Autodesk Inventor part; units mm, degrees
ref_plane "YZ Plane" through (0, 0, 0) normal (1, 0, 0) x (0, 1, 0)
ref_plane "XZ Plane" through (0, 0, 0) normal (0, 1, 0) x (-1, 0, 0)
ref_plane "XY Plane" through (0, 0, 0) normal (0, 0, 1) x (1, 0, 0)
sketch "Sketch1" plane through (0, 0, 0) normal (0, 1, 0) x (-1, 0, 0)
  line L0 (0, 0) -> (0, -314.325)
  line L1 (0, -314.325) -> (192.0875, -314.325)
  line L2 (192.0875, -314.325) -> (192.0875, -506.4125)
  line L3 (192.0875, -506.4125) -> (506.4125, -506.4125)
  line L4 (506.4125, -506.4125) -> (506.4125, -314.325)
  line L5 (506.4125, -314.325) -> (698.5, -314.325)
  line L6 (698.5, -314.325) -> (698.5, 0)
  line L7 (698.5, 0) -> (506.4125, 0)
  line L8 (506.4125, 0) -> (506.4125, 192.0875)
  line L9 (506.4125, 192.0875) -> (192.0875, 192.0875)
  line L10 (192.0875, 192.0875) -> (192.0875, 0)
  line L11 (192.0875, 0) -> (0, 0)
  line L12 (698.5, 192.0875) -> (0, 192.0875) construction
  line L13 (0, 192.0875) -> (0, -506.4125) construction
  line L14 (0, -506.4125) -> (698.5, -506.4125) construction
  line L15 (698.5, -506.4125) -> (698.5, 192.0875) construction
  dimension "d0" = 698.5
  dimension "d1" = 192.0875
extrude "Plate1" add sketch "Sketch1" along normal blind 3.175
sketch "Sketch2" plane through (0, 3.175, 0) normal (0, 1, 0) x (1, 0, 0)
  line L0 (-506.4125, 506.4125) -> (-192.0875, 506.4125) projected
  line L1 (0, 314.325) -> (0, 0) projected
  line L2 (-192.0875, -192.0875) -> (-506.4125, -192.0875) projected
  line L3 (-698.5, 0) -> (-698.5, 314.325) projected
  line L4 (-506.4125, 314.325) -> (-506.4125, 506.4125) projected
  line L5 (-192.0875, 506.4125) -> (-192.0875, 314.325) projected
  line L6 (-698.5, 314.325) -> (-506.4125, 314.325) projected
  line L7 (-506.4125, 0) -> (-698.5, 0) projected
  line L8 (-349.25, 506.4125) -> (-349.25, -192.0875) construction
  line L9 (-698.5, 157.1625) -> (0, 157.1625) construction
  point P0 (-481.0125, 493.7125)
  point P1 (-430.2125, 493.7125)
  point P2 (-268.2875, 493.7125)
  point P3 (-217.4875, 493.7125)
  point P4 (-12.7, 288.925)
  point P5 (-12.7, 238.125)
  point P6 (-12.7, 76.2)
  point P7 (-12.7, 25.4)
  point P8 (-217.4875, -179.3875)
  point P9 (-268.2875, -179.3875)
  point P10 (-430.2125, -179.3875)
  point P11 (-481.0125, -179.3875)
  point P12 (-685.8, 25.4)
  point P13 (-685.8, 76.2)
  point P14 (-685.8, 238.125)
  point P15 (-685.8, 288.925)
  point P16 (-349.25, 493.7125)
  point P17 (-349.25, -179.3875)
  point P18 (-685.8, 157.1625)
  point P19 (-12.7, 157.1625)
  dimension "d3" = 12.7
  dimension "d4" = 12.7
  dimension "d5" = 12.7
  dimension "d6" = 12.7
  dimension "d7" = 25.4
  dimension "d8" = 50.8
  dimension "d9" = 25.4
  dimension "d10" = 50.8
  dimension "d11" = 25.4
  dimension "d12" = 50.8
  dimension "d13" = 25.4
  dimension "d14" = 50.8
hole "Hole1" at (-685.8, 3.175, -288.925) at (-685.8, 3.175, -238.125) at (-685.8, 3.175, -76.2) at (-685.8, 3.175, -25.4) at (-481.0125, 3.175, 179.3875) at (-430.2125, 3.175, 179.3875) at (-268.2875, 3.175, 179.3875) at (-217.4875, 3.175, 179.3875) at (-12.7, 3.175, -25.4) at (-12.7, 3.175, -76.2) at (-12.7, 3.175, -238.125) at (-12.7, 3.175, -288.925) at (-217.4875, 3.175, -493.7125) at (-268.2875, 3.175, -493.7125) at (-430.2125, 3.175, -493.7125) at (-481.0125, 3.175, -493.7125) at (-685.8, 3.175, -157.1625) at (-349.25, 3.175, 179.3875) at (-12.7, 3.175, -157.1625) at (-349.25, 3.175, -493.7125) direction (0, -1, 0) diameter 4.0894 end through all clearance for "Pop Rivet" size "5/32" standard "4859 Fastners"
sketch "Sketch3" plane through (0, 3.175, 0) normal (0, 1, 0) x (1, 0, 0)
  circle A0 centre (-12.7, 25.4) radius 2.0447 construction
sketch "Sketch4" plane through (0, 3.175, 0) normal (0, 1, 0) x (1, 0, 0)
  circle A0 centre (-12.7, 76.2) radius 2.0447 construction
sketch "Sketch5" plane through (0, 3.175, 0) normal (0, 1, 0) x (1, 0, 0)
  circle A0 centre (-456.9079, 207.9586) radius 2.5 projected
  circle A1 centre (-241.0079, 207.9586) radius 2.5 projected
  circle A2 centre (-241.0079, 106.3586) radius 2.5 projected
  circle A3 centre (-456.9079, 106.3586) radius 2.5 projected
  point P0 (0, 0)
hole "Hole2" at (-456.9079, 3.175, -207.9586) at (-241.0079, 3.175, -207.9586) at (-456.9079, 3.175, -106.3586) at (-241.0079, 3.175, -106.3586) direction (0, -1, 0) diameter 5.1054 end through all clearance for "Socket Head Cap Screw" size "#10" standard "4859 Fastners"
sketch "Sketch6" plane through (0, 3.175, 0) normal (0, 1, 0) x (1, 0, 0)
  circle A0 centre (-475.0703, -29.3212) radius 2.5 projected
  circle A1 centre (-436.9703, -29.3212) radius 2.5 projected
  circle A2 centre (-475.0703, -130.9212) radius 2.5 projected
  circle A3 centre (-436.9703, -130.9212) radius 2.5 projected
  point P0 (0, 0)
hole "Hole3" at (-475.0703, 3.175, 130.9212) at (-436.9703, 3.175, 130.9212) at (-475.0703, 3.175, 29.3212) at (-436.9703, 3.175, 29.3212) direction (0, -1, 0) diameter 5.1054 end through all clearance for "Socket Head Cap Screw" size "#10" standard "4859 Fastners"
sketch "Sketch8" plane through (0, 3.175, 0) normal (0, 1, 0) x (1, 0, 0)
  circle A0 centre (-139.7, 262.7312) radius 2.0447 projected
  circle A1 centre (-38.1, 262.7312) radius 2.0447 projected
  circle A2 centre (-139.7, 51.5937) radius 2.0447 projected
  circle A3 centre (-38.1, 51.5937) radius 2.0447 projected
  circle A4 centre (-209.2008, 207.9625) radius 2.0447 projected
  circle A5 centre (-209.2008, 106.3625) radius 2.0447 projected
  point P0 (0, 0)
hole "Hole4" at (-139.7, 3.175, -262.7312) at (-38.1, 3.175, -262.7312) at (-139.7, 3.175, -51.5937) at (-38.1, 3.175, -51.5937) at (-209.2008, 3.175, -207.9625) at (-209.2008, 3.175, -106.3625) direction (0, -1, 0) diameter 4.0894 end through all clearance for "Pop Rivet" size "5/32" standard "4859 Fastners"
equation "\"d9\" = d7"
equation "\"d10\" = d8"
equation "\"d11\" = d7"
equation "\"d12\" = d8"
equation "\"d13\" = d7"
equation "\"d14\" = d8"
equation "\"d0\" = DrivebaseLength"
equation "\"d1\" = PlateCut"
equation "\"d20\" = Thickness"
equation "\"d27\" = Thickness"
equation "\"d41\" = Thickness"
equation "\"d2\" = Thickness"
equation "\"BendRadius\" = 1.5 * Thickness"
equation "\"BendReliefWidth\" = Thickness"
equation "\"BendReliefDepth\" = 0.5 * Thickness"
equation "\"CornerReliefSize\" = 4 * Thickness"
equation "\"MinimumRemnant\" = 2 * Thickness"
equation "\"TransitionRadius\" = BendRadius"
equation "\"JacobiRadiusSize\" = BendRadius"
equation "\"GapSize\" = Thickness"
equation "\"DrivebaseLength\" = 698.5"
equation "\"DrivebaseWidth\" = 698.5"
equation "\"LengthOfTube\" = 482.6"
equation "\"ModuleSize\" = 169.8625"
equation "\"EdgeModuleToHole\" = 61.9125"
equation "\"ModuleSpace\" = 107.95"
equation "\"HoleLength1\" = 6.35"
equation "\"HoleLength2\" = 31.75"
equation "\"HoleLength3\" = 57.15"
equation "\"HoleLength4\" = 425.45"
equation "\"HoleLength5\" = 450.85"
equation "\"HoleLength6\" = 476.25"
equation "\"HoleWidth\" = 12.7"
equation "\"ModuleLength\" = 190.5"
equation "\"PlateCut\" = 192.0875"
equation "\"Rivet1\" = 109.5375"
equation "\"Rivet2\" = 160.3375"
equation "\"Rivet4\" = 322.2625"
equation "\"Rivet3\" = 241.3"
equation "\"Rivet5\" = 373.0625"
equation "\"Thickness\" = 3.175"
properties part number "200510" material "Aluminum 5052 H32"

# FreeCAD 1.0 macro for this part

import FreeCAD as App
import Part
import Sketcher

V = App.Vector
Q = App.Units.Quantity


def add_polygon(sketch, points):
    """Adds a closed chain of lines whose ends are joined by coincident constraints."""
    first, n = sketch.GeometryCount, len(points)
    for a, b in zip(points, points[1:] + points[:1]):
        sketch.addGeometry(Part.LineSegment(App.Vector(*a, 0), App.Vector(*b, 0)), False)
    for i in range(n):
        sketch.addConstraint(Sketcher.Constraint("Coincident", first + i, 2, first + (i + 1) % n, 1))

doc = App.newDocument("Part")
body = doc.addObject("PartDesign::Body", "Body")

# Sketch on XZ plane
sketch1 = body.newObject("Sketcher::SketchObject", "Sketch")
sketch1.AttachmentSupport = (doc.getObject("XZ_Plane"), [""])
sketch1.MapMode = "FlatFace"
add_polygon(sketch1, [(-192, 0), (0, 0), (0, -314), (-192, -314), (-192, -506), (-506, -506), (-506, -314), (-698, -314), (-698, 0), (-506, 0), (-506, 192), (-192, 192)])  # lines 0-11
sketch1.addConstraint(Sketcher.Constraint("Horizontal", 0))
sketch1.addConstraint(Sketcher.Constraint("Vertical", 1))
sketch1.addConstraint(Sketcher.Constraint("Horizontal", 2))
sketch1.addConstraint(Sketcher.Constraint("Vertical", 3))
sketch1.addConstraint(Sketcher.Constraint("Horizontal", 4))
sketch1.addConstraint(Sketcher.Constraint("Vertical", 5))
sketch1.addConstraint(Sketcher.Constraint("Horizontal", 6))
sketch1.addConstraint(Sketcher.Constraint("Vertical", 7))
sketch1.addConstraint(Sketcher.Constraint("Horizontal", 8))
sketch1.addConstraint(Sketcher.Constraint("Vertical", 9))
sketch1.addConstraint(Sketcher.Constraint("Horizontal", 10))
sketch1.addConstraint(Sketcher.Constraint("Vertical", 11))
sketch1.addConstraint(Sketcher.Constraint("Coincident", 0, 2, -1, 1))
sketch1.addConstraint(Sketcher.Constraint("PointOnObject", 7, 2, -1))
sketch1.addConstraint(Sketcher.Constraint("Horizontal", 2, 2, 5, 2))
sketch1.addConstraint(Sketcher.Constraint("Vertical", 5, 2, 8, 2))
sketch1.addConstraint(Sketcher.Constraint("Vertical", 3, 2, 10, 2))
sketch1.addConstraint(Sketcher.Constraint("Equal", 2, 6))
sketch1.addConstraint(Sketcher.Constraint("Equal", 10, 1))
sketch1.addConstraint(Sketcher.Constraint("Equal", 8, 3))
sketch1.addConstraint(Sketcher.Constraint("Equal", 5, 9))
sketch1.addConstraint(Sketcher.Constraint("DistanceX", 6, 2, -1, 1, Q("27.5 in")))
sketch1.addConstraint(Sketcher.Constraint("DistanceX", 0, 1, 0, 2, Q("7.5625 in")))
pad1 = body.newObject("PartDesign::Pad", "Pad")
pad1.Profile = sketch1
pad1.Length = Q("0.125 in")
pad1.Reversed = True

# Sketch on XZ plane
sketch2 = body.newObject("Sketcher::SketchObject", "Sketch001")
sketch2.AttachmentSupport = (doc.getObject("XZ_Plane"), [""])
sketch2.MapMode = "FlatFace"
sketch2.AttachmentOffset = App.Placement(V(0, 0, -0.125 * 25.4), App.Rotation())
sketch2.addGeometry(Part.Circle(V(-685.8, -288.9, 0), V(0, 0, 1), 2), False)
sketch2.addGeometry(Part.Circle(V(-685.8, -238.1, 0), V(0, 0, 1), 2), False)
sketch2.addGeometry(Part.Circle(V(-685.8, -76.2, 0), V(0, 0, 1), 2), False)
sketch2.addGeometry(Part.Circle(V(-685.8, -25.4, 0), V(0, 0, 1), 2), False)
sketch2.addGeometry(Part.Circle(V(-481, 179.4, 0), V(0, 0, 1), 2), False)
sketch2.addGeometry(Part.Circle(V(-430.2, 179.4, 0), V(0, 0, 1), 2), False)
sketch2.addGeometry(Part.Circle(V(-268.3, 179.4, 0), V(0, 0, 1), 2), False)
sketch2.addGeometry(Part.Circle(V(-217.5, 179.4, 0), V(0, 0, 1), 2), False)
sketch2.addGeometry(Part.Circle(V(-12.7, -25.4, 0), V(0, 0, 1), 2), False)
sketch2.addGeometry(Part.Circle(V(-12.7, -76.2, 0), V(0, 0, 1), 2), False)
sketch2.addGeometry(Part.Circle(V(-12.7, -238.1, 0), V(0, 0, 1), 2), False)
sketch2.addGeometry(Part.Circle(V(-12.7, -288.9, 0), V(0, 0, 1), 2), False)
sketch2.addGeometry(Part.Circle(V(-217.5, -493.7, 0), V(0, 0, 1), 2), False)
sketch2.addGeometry(Part.Circle(V(-268.3, -493.7, 0), V(0, 0, 1), 2), False)
sketch2.addGeometry(Part.Circle(V(-430.2, -493.7, 0), V(0, 0, 1), 2), False)
sketch2.addGeometry(Part.Circle(V(-481, -493.7, 0), V(0, 0, 1), 2), False)
sketch2.addGeometry(Part.Circle(V(-685.8, -157.2, 0), V(0, 0, 1), 2), False)
sketch2.addGeometry(Part.Circle(V(-349.2, 179.4, 0), V(0, 0, 1), 2), False)
sketch2.addGeometry(Part.Circle(V(-12.7, -157.2, 0), V(0, 0, 1), 2), False)
sketch2.addGeometry(Part.Circle(V(-349.2, -493.7, 0), V(0, 0, 1), 2), False)
sketch2.addConstraint(Sketcher.Constraint("Equal", 0, 1))
sketch2.addConstraint(Sketcher.Constraint("Equal", 1, 2))
sketch2.addConstraint(Sketcher.Constraint("Equal", 2, 3))
sketch2.addConstraint(Sketcher.Constraint("Equal", 3, 4))
sketch2.addConstraint(Sketcher.Constraint("Equal", 4, 5))
sketch2.addConstraint(Sketcher.Constraint("Equal", 5, 6))
sketch2.addConstraint(Sketcher.Constraint("Equal", 6, 7))
sketch2.addConstraint(Sketcher.Constraint("Equal", 7, 8))
sketch2.addConstraint(Sketcher.Constraint("Equal", 8, 9))
sketch2.addConstraint(Sketcher.Constraint("Equal", 9, 10))
sketch2.addConstraint(Sketcher.Constraint("Equal", 10, 11))
sketch2.addConstraint(Sketcher.Constraint("Equal", 11, 12))
sketch2.addConstraint(Sketcher.Constraint("Equal", 12, 13))
sketch2.addConstraint(Sketcher.Constraint("Equal", 13, 14))
sketch2.addConstraint(Sketcher.Constraint("Equal", 14, 15))
sketch2.addConstraint(Sketcher.Constraint("Equal", 15, 16))
sketch2.addConstraint(Sketcher.Constraint("Equal", 16, 17))
sketch2.addConstraint(Sketcher.Constraint("Equal", 17, 18))
sketch2.addConstraint(Sketcher.Constraint("Equal", 18, 19))
sketch2.addConstraint(Sketcher.Constraint("Horizontal", 4, 3, 5, 3))
sketch2.addConstraint(Sketcher.Constraint("Horizontal", 5, 3, 6, 3))
sketch2.addConstraint(Sketcher.Constraint("Horizontal", 6, 3, 7, 3))
sketch2.addConstraint(Sketcher.Constraint("Horizontal", 3, 3, 8, 3))
sketch2.addConstraint(Sketcher.Constraint("Horizontal", 2, 3, 9, 3))
sketch2.addConstraint(Sketcher.Constraint("Horizontal", 1, 3, 10, 3))
sketch2.addConstraint(Sketcher.Constraint("Horizontal", 0, 3, 11, 3))
sketch2.addConstraint(Sketcher.Constraint("Horizontal", 12, 3, 13, 3))
sketch2.addConstraint(Sketcher.Constraint("Horizontal", 13, 3, 14, 3))
sketch2.addConstraint(Sketcher.Constraint("Horizontal", 14, 3, 15, 3))
sketch2.addConstraint(Sketcher.Constraint("Horizontal", 7, 3, 17, 3))
sketch2.addConstraint(Sketcher.Constraint("Horizontal", 16, 3, 18, 3))
sketch2.addConstraint(Sketcher.Constraint("Horizontal", 15, 3, 19, 3))
sketch2.addConstraint(Sketcher.Constraint("Vertical", 0, 3, 1, 3))
sketch2.addConstraint(Sketcher.Constraint("Vertical", 1, 3, 2, 3))
sketch2.addConstraint(Sketcher.Constraint("Vertical", 2, 3, 3, 3))
sketch2.addConstraint(Sketcher.Constraint("Vertical", 8, 3, 9, 3))
sketch2.addConstraint(Sketcher.Constraint("Vertical", 9, 3, 10, 3))
sketch2.addConstraint(Sketcher.Constraint("Vertical", 10, 3, 11, 3))
sketch2.addConstraint(Sketcher.Constraint("Vertical", 7, 3, 12, 3))
sketch2.addConstraint(Sketcher.Constraint("Vertical", 6, 3, 13, 3))
sketch2.addConstraint(Sketcher.Constraint("Vertical", 5, 3, 14, 3))
sketch2.addConstraint(Sketcher.Constraint("Vertical", 4, 3, 15, 3))
sketch2.addConstraint(Sketcher.Constraint("Vertical", 3, 3, 16, 3))
sketch2.addConstraint(Sketcher.Constraint("Vertical", 11, 3, 18, 3))
sketch2.addConstraint(Sketcher.Constraint("Vertical", 17, 3, 19, 3))
sketch2.addConstraint(Sketcher.Constraint("Diameter", 0, Q("0.161 in")))
sketch2.addConstraint(Sketcher.Constraint("DistanceX", 0, 3, -1, 1, Q("27 in")))
sketch2.addConstraint(Sketcher.Constraint("DistanceY", 2, 3, -1, 1, Q("3 in")))
sketch2.addConstraint(Sketcher.Constraint("DistanceY", 3, 3, -1, 1, Q("1 in")))
sketch2.addConstraint(Sketcher.Constraint("DistanceY", 0, 3, 1, 3, Q("2 in")))
sketch2.addConstraint(Sketcher.Constraint("DistanceX", 4, 3, 5, 3, Q("2 in")))
sketch2.addConstraint(Sketcher.Constraint("DistanceX", 6, 3, 7, 3, Q("2 in")))
sketch2.addConstraint(Sketcher.Constraint("DistanceX", 8, 3, -1, 1, Q("0.5 in")))
sketch2.addConstraint(Sketcher.Constraint("DistanceX", 17, 3, -1, 1, Q("13.75 in")))
sketch2.addConstraint(Sketcher.Constraint("DistanceY", 16, 3, 4, 3, Q("13.25 in")))
sketch2.addConstraint(Sketcher.Constraint("DistanceY", 0, 3, -1, 1, Q("11.375 in")))
sketch2.addConstraint(Sketcher.Constraint("DistanceX", 4, 3, -1, 1, Q("18.9375 in")))
sketch2.addConstraint(Sketcher.Constraint("DistanceY", -1, 1, 4, 3, Q("7.0625 in")))
sketch2.addConstraint(Sketcher.Constraint("DistanceX", 6, 3, -1, 1, Q("10.5625 in")))
sketch2.addConstraint(Sketcher.Constraint("DistanceY", 12, 3, -1, 1, Q("19.4375 in")))
doc.recompute()
hole = body.newObject("PartDesign::Hole", "Hole")
hole.Profile = sketch2
hole.ThreadType = "None"
hole.Diameter = Q("0.161 in")
hole.DepthType = "ThroughAll"
hole.Reversed = True

# Sketch on XZ plane
sketch3 = body.newObject("Sketcher::SketchObject", "Sketch002")
sketch3.AttachmentSupport = (doc.getObject("XZ_Plane"), [""])
sketch3.MapMode = "FlatFace"
sketch3.AttachmentOffset = App.Placement(V(0, 0, -0.125 * 25.4), App.Rotation())
sketch3.addGeometry(Part.Circle(V(-456.9, -208, 0), V(0, 0, 1), 2.6), False)
sketch3.addGeometry(Part.Circle(V(-241, -208, 0), V(0, 0, 1), 2.6), False)
sketch3.addGeometry(Part.Circle(V(-456.9, -106.4, 0), V(0, 0, 1), 2.6), False)
sketch3.addGeometry(Part.Circle(V(-241, -106.4, 0), V(0, 0, 1), 2.6), False)
sketch3.addConstraint(Sketcher.Constraint("Equal", 0, 1))
sketch3.addConstraint(Sketcher.Constraint("Equal", 1, 2))
sketch3.addConstraint(Sketcher.Constraint("Equal", 2, 3))
sketch3.addConstraint(Sketcher.Constraint("Horizontal", 0, 3, 1, 3))
sketch3.addConstraint(Sketcher.Constraint("Horizontal", 2, 3, 3, 3))
sketch3.addConstraint(Sketcher.Constraint("Vertical", 0, 3, 2, 3))
sketch3.addConstraint(Sketcher.Constraint("Vertical", 1, 3, 3, 3))
sketch3.addConstraint(Sketcher.Constraint("Diameter", 0, Q("0.201 in")))
sketch3.addConstraint(Sketcher.Constraint("DistanceY", 0, 3, 2, 3, Q("4 in")))
sketch3.addConstraint(Sketcher.Constraint("DistanceX", 0, 3, 1, 3, Q("8.5 in")))
sketch3.addConstraint(Sketcher.Constraint("DistanceX", 0, 3, -1, 1, Q("17.9885 in")))
sketch3.addConstraint(Sketcher.Constraint("DistanceY", 0, 3, -1, 1, 207.9586))
doc.recompute()
hole2 = body.newObject("PartDesign::Hole", "Hole001")
hole2.Profile = sketch3
hole2.ThreadType = "None"
hole2.Diameter = Q("0.201 in")
hole2.DepthType = "ThroughAll"
hole2.Reversed = True

# Sketch on XZ plane
sketch4 = body.newObject("Sketcher::SketchObject", "Sketch003")
sketch4.AttachmentSupport = (doc.getObject("XZ_Plane"), [""])
sketch4.MapMode = "FlatFace"
sketch4.AttachmentOffset = App.Placement(V(0, 0, -0.125 * 25.4), App.Rotation())
sketch4.addGeometry(Part.Circle(V(-475.1, 130.9, 0), V(0, 0, 1), 2.6), False)
sketch4.addGeometry(Part.Circle(V(-437, 130.9, 0), V(0, 0, 1), 2.6), False)
sketch4.addGeometry(Part.Circle(V(-475.1, 29.3, 0), V(0, 0, 1), 2.6), False)
sketch4.addGeometry(Part.Circle(V(-437, 29.3, 0), V(0, 0, 1), 2.6), False)
sketch4.addConstraint(Sketcher.Constraint("Equal", 0, 1))
sketch4.addConstraint(Sketcher.Constraint("Equal", 1, 2))
sketch4.addConstraint(Sketcher.Constraint("Equal", 2, 3))
sketch4.addConstraint(Sketcher.Constraint("Horizontal", 0, 3, 1, 3))
sketch4.addConstraint(Sketcher.Constraint("Horizontal", 2, 3, 3, 3))
sketch4.addConstraint(Sketcher.Constraint("Vertical", 0, 3, 2, 3))
sketch4.addConstraint(Sketcher.Constraint("Vertical", 1, 3, 3, 3))
sketch4.addConstraint(Sketcher.Constraint("Diameter", 0, Q("0.201 in")))
sketch4.addConstraint(Sketcher.Constraint("DistanceY", 2, 3, 0, 3, Q("4 in")))
sketch4.addConstraint(Sketcher.Constraint("DistanceX", 0, 3, 1, 3, Q("1.5 in")))
sketch4.addConstraint(Sketcher.Constraint("DistanceX", 0, 3, -1, 1, 475.0703))
sketch4.addConstraint(Sketcher.Constraint("DistanceY", -1, 1, 0, 3, 130.9212))
doc.recompute()
hole3 = body.newObject("PartDesign::Hole", "Hole002")
hole3.Profile = sketch4
hole3.ThreadType = "None"
hole3.Diameter = Q("0.201 in")
hole3.DepthType = "ThroughAll"
hole3.Reversed = True

# Sketch on XZ plane
sketch5 = body.newObject("Sketcher::SketchObject", "Sketch004")
sketch5.AttachmentSupport = (doc.getObject("XZ_Plane"), [""])
sketch5.MapMode = "FlatFace"
sketch5.AttachmentOffset = App.Placement(V(0, 0, -0.125 * 25.4), App.Rotation())
sketch5.addGeometry(Part.Circle(V(-139.7, -262.7, 0), V(0, 0, 1), 2), False)
sketch5.addGeometry(Part.Circle(V(-38.1, -262.7, 0), V(0, 0, 1), 2), False)
sketch5.addGeometry(Part.Circle(V(-139.7, -51.6, 0), V(0, 0, 1), 2), False)
sketch5.addGeometry(Part.Circle(V(-38.1, -51.6, 0), V(0, 0, 1), 2), False)
sketch5.addGeometry(Part.Circle(V(-209.2, -208, 0), V(0, 0, 1), 2), False)
sketch5.addGeometry(Part.Circle(V(-209.2, -106.4, 0), V(0, 0, 1), 2), False)
sketch5.addConstraint(Sketcher.Constraint("Equal", 0, 1))
sketch5.addConstraint(Sketcher.Constraint("Equal", 1, 2))
sketch5.addConstraint(Sketcher.Constraint("Equal", 2, 3))
sketch5.addConstraint(Sketcher.Constraint("Equal", 3, 4))
sketch5.addConstraint(Sketcher.Constraint("Equal", 4, 5))
sketch5.addConstraint(Sketcher.Constraint("Horizontal", 0, 3, 1, 3))
sketch5.addConstraint(Sketcher.Constraint("Horizontal", 2, 3, 3, 3))
sketch5.addConstraint(Sketcher.Constraint("Vertical", 0, 3, 2, 3))
sketch5.addConstraint(Sketcher.Constraint("Vertical", 1, 3, 3, 3))
sketch5.addConstraint(Sketcher.Constraint("Vertical", 4, 3, 5, 3))
sketch5.addConstraint(Sketcher.Constraint("Diameter", 0, Q("0.161 in")))
sketch5.addConstraint(Sketcher.Constraint("DistanceX", 0, 3, 1, 3, Q("4 in")))
sketch5.addConstraint(Sketcher.Constraint("DistanceY", 4, 3, 5, 3, Q("4 in")))
sketch5.addConstraint(Sketcher.Constraint("DistanceX", 0, 3, -1, 1, Q("5.5 in")))
sketch5.addConstraint(Sketcher.Constraint("DistanceY", 0, 3, -1, 1, Q("10.343748 in")))
sketch5.addConstraint(Sketcher.Constraint("DistanceY", 2, 3, -1, 1, Q("2.031248 in")))
sketch5.addConstraint(Sketcher.Constraint("DistanceY", 4, 3, -1, 1, Q("8.1875 in")))
sketch5.addConstraint(Sketcher.Constraint("DistanceX", 4, 3, -1, 1, 209.2008))
doc.recompute()
hole4 = body.newObject("PartDesign::Hole", "Hole003")
hole4.Profile = sketch5
hole4.ThreadType = "None"
hole4.Diameter = Q("0.161 in")
hole4.DepthType = "ThroughAll"
hole4.Reversed = True

doc.recompute()
